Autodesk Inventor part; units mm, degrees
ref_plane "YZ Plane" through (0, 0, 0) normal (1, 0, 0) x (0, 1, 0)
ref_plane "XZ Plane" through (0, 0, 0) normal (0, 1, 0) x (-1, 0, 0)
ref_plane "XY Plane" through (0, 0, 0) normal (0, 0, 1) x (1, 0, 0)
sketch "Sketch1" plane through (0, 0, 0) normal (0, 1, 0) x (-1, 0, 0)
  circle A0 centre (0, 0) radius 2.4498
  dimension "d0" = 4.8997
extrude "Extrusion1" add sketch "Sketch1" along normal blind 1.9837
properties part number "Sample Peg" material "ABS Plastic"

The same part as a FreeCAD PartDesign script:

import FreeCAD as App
import Part
import Sketcher
from FreeCAD import Vector
Q = App.Units.Quantity

doc = App.newDocument("Part")
body = doc.addObject("PartDesign::Body", "Body")

# Sketch on XZ plane
sketch1 = body.newObject("Sketcher::SketchObject", "Sketch")
sketch1.AttachmentSupport = (doc.getObject("XZ_Plane"), [""])
sketch1.MapMode = "FlatFace"
sketch1.addGeometry(Part.Circle(Vector(0, 0, 0), Vector(0, 0, 1), 2.4498), False)
sketch1.addConstraint([
    Sketcher.Constraint("Coincident", 0, 3, -1, 1),
    Sketcher.Constraint("Diameter", 0, Q("4.8996 mm")),
])
pad1 = body.newObject("PartDesign::Pad", "Pad")
pad1.Profile = sketch1
pad1.Length = 1.9837
pad1.Reversed = True

doc.recompute()
